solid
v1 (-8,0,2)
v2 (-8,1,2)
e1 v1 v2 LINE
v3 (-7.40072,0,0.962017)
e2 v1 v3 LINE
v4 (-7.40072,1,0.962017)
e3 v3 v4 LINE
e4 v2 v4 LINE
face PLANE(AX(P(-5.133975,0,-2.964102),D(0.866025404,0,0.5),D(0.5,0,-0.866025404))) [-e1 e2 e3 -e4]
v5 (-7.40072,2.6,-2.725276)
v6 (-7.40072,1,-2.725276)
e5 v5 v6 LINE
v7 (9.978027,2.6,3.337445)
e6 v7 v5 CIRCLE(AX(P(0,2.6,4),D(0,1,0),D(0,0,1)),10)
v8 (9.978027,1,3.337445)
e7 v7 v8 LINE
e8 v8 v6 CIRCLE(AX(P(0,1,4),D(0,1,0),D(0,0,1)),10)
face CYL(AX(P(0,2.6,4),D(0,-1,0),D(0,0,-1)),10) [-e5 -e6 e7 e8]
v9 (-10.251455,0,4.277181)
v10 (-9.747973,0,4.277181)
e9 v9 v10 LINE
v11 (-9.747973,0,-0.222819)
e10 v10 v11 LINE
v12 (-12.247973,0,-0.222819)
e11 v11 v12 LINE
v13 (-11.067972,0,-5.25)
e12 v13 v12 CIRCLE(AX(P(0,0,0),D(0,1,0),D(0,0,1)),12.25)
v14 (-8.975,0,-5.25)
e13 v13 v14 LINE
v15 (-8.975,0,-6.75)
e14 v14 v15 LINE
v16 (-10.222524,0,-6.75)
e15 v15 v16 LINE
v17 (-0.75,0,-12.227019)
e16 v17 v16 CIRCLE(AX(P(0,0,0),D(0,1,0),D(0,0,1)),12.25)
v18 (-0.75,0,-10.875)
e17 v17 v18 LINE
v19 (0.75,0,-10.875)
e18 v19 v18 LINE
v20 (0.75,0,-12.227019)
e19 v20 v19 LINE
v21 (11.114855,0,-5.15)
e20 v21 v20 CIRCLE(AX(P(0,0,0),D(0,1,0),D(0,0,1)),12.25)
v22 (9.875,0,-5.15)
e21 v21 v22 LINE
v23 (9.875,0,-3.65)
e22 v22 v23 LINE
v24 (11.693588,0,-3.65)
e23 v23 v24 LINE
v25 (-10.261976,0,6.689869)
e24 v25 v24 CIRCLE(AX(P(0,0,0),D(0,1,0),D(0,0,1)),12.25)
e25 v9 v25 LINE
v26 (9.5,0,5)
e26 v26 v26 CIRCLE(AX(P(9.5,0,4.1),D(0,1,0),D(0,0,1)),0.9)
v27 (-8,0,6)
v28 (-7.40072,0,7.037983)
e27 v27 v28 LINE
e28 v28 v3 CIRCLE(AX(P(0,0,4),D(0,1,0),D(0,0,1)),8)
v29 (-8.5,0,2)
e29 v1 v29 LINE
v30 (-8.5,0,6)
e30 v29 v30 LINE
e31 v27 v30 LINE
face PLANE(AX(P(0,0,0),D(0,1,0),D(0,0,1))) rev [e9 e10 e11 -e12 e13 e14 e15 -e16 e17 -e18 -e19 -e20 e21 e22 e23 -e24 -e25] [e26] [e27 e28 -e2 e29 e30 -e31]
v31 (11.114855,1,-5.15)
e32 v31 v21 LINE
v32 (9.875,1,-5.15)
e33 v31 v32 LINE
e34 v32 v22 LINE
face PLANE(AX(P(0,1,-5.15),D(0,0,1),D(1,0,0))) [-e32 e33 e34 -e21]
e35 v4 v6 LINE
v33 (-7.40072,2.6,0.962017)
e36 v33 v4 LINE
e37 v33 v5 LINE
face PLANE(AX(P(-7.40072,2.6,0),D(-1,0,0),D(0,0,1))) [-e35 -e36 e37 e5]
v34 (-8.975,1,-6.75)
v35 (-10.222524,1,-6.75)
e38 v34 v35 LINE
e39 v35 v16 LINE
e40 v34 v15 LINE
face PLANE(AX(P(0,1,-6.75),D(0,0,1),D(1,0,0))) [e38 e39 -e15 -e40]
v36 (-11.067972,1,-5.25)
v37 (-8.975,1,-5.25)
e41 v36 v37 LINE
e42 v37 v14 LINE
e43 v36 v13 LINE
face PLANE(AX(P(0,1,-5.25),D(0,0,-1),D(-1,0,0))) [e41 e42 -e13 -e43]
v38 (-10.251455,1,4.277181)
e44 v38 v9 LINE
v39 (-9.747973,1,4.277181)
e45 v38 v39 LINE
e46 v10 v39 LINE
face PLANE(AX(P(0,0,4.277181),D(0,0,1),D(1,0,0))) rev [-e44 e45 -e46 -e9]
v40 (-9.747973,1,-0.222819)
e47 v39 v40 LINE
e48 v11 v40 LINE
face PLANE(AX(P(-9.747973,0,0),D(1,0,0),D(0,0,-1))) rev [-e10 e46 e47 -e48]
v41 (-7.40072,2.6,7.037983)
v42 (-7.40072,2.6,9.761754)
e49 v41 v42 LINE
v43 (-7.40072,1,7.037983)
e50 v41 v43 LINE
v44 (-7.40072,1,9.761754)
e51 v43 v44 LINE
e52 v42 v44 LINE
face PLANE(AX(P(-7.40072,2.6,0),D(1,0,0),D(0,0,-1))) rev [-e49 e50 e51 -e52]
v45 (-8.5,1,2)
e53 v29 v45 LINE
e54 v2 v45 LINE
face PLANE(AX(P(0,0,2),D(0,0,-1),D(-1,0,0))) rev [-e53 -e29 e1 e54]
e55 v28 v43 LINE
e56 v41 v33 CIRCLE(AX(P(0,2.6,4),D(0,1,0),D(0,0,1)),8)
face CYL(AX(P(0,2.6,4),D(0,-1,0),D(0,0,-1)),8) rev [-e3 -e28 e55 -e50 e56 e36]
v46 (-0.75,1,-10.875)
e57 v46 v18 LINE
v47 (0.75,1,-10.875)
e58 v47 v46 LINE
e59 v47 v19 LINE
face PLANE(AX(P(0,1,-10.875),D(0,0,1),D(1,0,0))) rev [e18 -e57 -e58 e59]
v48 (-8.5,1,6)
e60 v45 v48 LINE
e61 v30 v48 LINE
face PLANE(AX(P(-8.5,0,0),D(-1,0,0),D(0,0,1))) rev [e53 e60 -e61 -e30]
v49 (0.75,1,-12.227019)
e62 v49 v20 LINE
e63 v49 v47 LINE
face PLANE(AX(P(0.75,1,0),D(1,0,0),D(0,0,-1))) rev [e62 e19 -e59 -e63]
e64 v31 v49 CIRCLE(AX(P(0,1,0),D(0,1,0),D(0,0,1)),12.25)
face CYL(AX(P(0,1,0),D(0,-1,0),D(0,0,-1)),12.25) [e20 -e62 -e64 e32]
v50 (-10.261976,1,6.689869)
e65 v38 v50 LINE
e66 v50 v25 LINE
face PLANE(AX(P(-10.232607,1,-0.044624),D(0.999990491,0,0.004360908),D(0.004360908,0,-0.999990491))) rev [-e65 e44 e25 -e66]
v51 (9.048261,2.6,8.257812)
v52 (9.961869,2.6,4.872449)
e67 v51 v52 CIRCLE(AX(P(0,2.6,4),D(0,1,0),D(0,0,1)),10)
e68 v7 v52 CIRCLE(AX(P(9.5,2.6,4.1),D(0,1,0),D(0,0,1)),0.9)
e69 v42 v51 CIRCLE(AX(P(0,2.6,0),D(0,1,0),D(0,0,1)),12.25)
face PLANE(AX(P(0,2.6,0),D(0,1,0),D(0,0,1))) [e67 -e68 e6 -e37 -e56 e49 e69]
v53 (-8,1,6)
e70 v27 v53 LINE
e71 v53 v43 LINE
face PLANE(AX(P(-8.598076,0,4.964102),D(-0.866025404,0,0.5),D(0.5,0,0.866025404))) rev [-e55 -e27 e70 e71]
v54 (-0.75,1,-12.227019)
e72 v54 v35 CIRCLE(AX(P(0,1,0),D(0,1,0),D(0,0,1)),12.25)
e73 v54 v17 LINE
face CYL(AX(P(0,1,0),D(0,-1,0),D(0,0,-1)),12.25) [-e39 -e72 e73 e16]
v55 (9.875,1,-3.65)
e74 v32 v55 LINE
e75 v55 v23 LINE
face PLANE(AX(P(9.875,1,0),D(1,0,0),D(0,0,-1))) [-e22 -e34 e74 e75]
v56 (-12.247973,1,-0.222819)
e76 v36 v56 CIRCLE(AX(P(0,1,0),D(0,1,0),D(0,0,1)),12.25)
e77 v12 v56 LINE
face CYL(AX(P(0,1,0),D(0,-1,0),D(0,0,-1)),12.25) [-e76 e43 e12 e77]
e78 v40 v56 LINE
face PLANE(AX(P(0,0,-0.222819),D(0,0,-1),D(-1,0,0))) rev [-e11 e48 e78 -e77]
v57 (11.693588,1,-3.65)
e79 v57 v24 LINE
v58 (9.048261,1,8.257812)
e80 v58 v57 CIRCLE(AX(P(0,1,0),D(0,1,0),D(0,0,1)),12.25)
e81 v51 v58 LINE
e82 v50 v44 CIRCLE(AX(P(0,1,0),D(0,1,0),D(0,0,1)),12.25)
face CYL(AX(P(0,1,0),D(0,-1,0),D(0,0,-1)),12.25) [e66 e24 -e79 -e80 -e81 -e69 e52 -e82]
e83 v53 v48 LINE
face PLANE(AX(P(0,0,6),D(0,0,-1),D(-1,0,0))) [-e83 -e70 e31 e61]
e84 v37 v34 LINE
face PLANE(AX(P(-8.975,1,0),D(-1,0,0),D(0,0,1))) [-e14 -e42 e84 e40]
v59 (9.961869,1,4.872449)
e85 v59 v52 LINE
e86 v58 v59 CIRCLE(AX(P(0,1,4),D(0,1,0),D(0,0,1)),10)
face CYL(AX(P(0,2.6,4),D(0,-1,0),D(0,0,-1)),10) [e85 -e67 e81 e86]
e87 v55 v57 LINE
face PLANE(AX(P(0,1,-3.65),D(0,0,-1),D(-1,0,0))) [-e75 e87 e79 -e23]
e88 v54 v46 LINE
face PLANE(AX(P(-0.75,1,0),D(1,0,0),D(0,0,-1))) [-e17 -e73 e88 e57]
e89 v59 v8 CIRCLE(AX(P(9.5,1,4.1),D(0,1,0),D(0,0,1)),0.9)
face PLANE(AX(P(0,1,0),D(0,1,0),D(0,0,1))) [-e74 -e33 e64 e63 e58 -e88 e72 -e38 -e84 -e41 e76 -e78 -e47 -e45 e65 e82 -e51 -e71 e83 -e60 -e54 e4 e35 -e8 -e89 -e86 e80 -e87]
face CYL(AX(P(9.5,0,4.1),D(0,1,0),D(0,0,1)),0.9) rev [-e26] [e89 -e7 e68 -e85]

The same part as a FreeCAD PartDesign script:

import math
import FreeCAD as App
import Part
import Sketcher

V = App.Vector
Q = App.Units.Quantity

doc = App.newDocument("Part")
params = doc.addObject("Spreadsheet::Sheet", "Params")
for row, (alias, value) in enumerate([
    ("sketch1_radius", "12.25 mm"),
    ("sketch1_width", "1.5 mm"),
    ("pad1_length", "1 mm"),
    ("sketch2_radius", "8 mm"),
    ("sketch2_radius2", "10 mm"),
    ("sketch2_radius3", "12.25 mm"),
    ("pad2_length", "1.6 mm"),
    ("sketch3_radius", "8 mm"),
    ("sketch3_diameter", "1.8 mm"),
    ("sketch3_height", "4 mm"),
    ("sketch3_radius2", "12.25 mm"),
    ("sketch3_width", "2.5 mm"),
], start=1):
    params.set(f"A{row}", alias)
    params.set(f"B{row}", "=" + value)
    params.setAlias(f"B{row}", alias)

body = doc.addObject("PartDesign::Body", "Body")

# Sketch on XZ plane
sketch1 = body.newObject("Sketcher::SketchObject", "Sketch")
sketch1.AttachmentSupport = (doc.getObject("XZ_Plane"), [""])
sketch1.MapMode = "FlatFace"
sketch1.addGeometry(Part.LineSegment(V(-0.8, -10.9, 0), V(-0.8, -12.2, 0)), False)
sketch1.addGeometry(Part.ArcOfCircle(Part.Circle(V(0, 0, 0), V(0, 0, 1), 12.3), math.radians(-147), math.radians(-94)), False)
sketch1.addGeometry(Part.LineSegment(V(-10.2, -6.8, 0), V(-9, -6.8, 0)), False)
sketch1.addGeometry(Part.LineSegment(V(-9, -6.8, 0), V(-9, -5.2, 0)), False)
sketch1.addGeometry(Part.LineSegment(V(-9, -5.2, 0), V(-11.1, -5.2, 0)), False)
sketch1.addGeometry(Part.ArcOfCircle(Part.Circle(V(0, 0, 0), V(0, 0, 1), 12.3), math.radians(160), math.radians(205)), False)
sketch1.addGeometry(Part.LineSegment(V(-11.5, 4.3, 0), V(-10.3, 4.3, 0)), False)
sketch1.addGeometry(Part.LineSegment(V(-10.3, 4.3, 0), V(-10.3, 6.7, 0)), False)
sketch1.addGeometry(Part.ArcOfCircle(Part.Circle(V(0, 0, 0), V(0, 0, 1), 12.2), math.radians(-17), math.radians(147)), False)
sketch1.addGeometry(Part.LineSegment(V(11.7, -3.6, 0), V(9.9, -3.6, 0)), False)
sketch1.addGeometry(Part.LineSegment(V(9.9, -3.6, 0), V(9.9, -5.2, 0)), False)
sketch1.addGeometry(Part.LineSegment(V(9.9, -5.2, 0), V(11.1, -5.2, 0)), False)
sketch1.addGeometry(Part.ArcOfCircle(Part.Circle(V(0, 0, 0), V(0, 0, 1), 12.2), math.radians(-86), math.radians(-25)), False)
sketch1.addGeometry(Part.LineSegment(V(0.8, -12.2, 0), V(0.8, -10.9, 0)), False)
sketch1.addGeometry(Part.LineSegment(V(0.8, -10.9, 0), V(-0.8, -10.9, 0)), False)
sketch1.addConstraint(Sketcher.Constraint("Coincident", 0, 2, 1, 2))
sketch1.addConstraint(Sketcher.Constraint("Coincident", 1, 1, 2, 1))
sketch1.addConstraint(Sketcher.Constraint("Coincident", 2, 2, 3, 1))
sketch1.addConstraint(Sketcher.Constraint("Coincident", 3, 2, 4, 1))
sketch1.addConstraint(Sketcher.Constraint("Coincident", 4, 2, 5, 2))
sketch1.addConstraint(Sketcher.Constraint("Coincident", 5, 1, 6, 1))
sketch1.addConstraint(Sketcher.Constraint("Coincident", 6, 2, 7, 1))
sketch1.addConstraint(Sketcher.Constraint("Coincident", 7, 2, 8, 2))
sketch1.addConstraint(Sketcher.Constraint("Coincident", 8, 1, 9, 1))
sketch1.addConstraint(Sketcher.Constraint("Coincident", 9, 2, 10, 1))
sketch1.addConstraint(Sketcher.Constraint("Coincident", 10, 2, 11, 1))
sketch1.addConstraint(Sketcher.Constraint("Coincident", 11, 2, 12, 2))
sketch1.addConstraint(Sketcher.Constraint("Coincident", 12, 1, 13, 1))
sketch1.addConstraint(Sketcher.Constraint("Coincident", 13, 2, 14, 1))
sketch1.addConstraint(Sketcher.Constraint("Coincident", 14, 2, 0, 1))
sketch1.addConstraint(Sketcher.Constraint("Vertical", 0))
sketch1.addConstraint(Sketcher.Constraint("Horizontal", 2))
sketch1.addConstraint(Sketcher.Constraint("Vertical", 3))
sketch1.addConstraint(Sketcher.Constraint("Horizontal", 4))
sketch1.addConstraint(Sketcher.Constraint("Horizontal", 6))
sketch1.addConstraint(Sketcher.Constraint("Horizontal", 9))
sketch1.addConstraint(Sketcher.Constraint("Vertical", 10))
sketch1.addConstraint(Sketcher.Constraint("Horizontal", 11))
sketch1.addConstraint(Sketcher.Constraint("Vertical", 13))
sketch1.addConstraint(Sketcher.Constraint("Horizontal", 14))
sketch1.addConstraint(Sketcher.Constraint("Coincident", 1, 3, -1, 1))
sketch1.addConstraint(Sketcher.Constraint("Coincident", 5, 3, -1, 1))
sketch1.addConstraint(Sketcher.Constraint("Coincident", 8, 3, -1, 1))
sketch1.addConstraint(Sketcher.Constraint("Coincident", 12, 3, -1, 1))
sketch1.addConstraint(Sketcher.Constraint("Equal", 1, 5))
sketch1.addConstraint(Sketcher.Constraint("Equal", 5, 8))
sketch1.addConstraint(Sketcher.Constraint("Equal", 8, 12))
sketch1.addConstraint(Sketcher.Constraint("Horizontal", 0, 2, 12, 1))
sketch1.addConstraint(Sketcher.Constraint("Equal", 14, 3))
sketch1.addConstraint(Sketcher.Constraint("Equal", 3, 10))
sketch1.addConstraint(Sketcher.Constraint("Radius", 1, Q("12.25 mm")))
sketch1.addConstraint(Sketcher.Constraint("DistanceX", 14, 2, 14, 1, Q("1.5 mm")))
sketch1.addConstraint(Sketcher.Constraint("DistanceY", 1, 1, -1, 1, Q("6.75 mm")))
sketch1.addConstraint(Sketcher.Constraint("DistanceY", 8, 1, -1, 1, Q("3.65 mm")))
sketch1.addConstraint(Sketcher.Constraint("DistanceX", 2, 2, -1, 1, Q("8.975 mm")))
sketch1.addConstraint(Sketcher.Constraint("DistanceX", -1, 1, 9, 2, Q("9.875 mm")))
sketch1.addConstraint(Sketcher.Constraint("DistanceY", 13, 2, -1, 1, Q("10.875 mm")))
sketch1.addConstraint(Sketcher.Constraint("DistanceX", 6, 1, 6, 2, Q("1.22758 mm")))
sketch1.addConstraint(Sketcher.Constraint("Distance", 7, Q("2.412711 mm")))
sketch1.addConstraint(Sketcher.Constraint("DistanceY", -1, 1, 5, 1, Q("4.277181 mm")))
sketch1.setExpression("Constraints[35]", "Params.sketch1_radius")
sketch1.setExpression("Constraints[36]", "Params.sketch1_width")
pad1 = body.newObject("PartDesign::Pad", "Pad")
pad1.Profile = sketch1
pad1.setExpression("Length", "Params.pad1_length")
pad1.Reversed = True

# Sketch on XZ plane
sketch2 = body.newObject("Sketcher::SketchObject", "Sketch001")
sketch2.AttachmentSupport = (doc.getObject("XZ_Plane"), [""])
sketch2.MapMode = "FlatFace"
sketch2.AttachmentOffset = App.Placement(V(0, 0, -1), App.Rotation())
sketch2.addGeometry(Part.LineSegment(V(-7.4, -2.7, 0), V(-7.4, 1, 0)), False)
sketch2.addGeometry(Part.ArcOfCircle(Part.Circle(V(0, 4, 0), V(0, 0, 1), 8), math.radians(-158), math.radians(0)), False)
sketch2.addGeometry(Part.ArcOfCircle(Part.Circle(V(0, 4, 0), V(0, 0, 1), 8), math.radians(0), math.radians(158)), False)
sketch2.addGeometry(Part.LineSegment(V(-7.4, 7, 0), V(-7.4, 9.8, 0)), False)
sketch2.addGeometry(Part.ArcOfCircle(Part.Circle(V(0, 0, 0), V(0, 0, 1), 12.2), math.radians(42), math.radians(127)), False)
sketch2.addGeometry(Part.ArcOfCircle(Part.Circle(V(0, 4, 0), V(0, 0, 1), 10), math.radians(0), math.radians(25)), False)
sketch2.addGeometry(Part.ArcOfCircle(Part.Circle(V(0, 4, 0), V(0, 0, 1), 10), math.radians(-138), math.radians(0)), False)
sketch2.addConstraint(Sketcher.Constraint("Coincident", 0, 2, 1, 1))
sketch2.addConstraint(Sketcher.Constraint("Tangent", 1, 2, 2, 1))
sketch2.addConstraint(Sketcher.Constraint("Coincident", 2, 2, 3, 1))
sketch2.addConstraint(Sketcher.Constraint("Coincident", 3, 2, 4, 2))
sketch2.addConstraint(Sketcher.Constraint("Coincident", 4, 1, 5, 2))
sketch2.addConstraint(Sketcher.Constraint("Tangent", 5, 1, 6, 2))
sketch2.addConstraint(Sketcher.Constraint("Coincident", 6, 1, 0, 1))
sketch2.addConstraint(Sketcher.Constraint("Vertical", 0))
sketch2.addConstraint(Sketcher.Constraint("Vertical", 3))
sketch2.addConstraint(Sketcher.Constraint("Coincident", 4, 3, -1, 1))
sketch2.addConstraint(Sketcher.Constraint("Coincident", 5, 3, 1, 3))
sketch2.addConstraint(Sketcher.Constraint("Equal", 1, 2))
sketch2.addConstraint(Sketcher.Constraint("Equal", 5, 6))
sketch2.addConstraint(Sketcher.Constraint("PointOnObject", 1, 3, -2))
sketch2.addConstraint(Sketcher.Constraint("Horizontal", 6, 3, 1, 2))
sketch2.addConstraint(Sketcher.Constraint("Horizontal", 1, 2, 5, 1))
sketch2.addConstraint(Sketcher.Constraint("Vertical", 0, 2, 2, 2))
sketch2.addConstraint(Sketcher.Constraint("Radius", 1, Q("8 mm")))
sketch2.addConstraint(Sketcher.Constraint("Radius", 5, Q("10 mm")))
sketch2.addConstraint(Sketcher.Constraint("Radius", 4, Q("12.25 mm")))
sketch2.addConstraint(Sketcher.Constraint("DistanceY", -1, 1, 1, 3, Q("4 mm")))
sketch2.addConstraint(Sketcher.Constraint("DistanceY", 3, 1, 3, 2, Q("2.723771 mm")))
sketch2.setExpression("Constraints[17]", "Params.sketch2_radius")
sketch2.setExpression("Constraints[18]", "Params.sketch2_radius2")
sketch2.setExpression("Constraints[19]", "Params.sketch2_radius3")
pad2 = body.newObject("PartDesign::Pad", "Pad001")
pad2.Profile = sketch2
pad2.setExpression("Length", "Params.pad2_length")
pad2.Reversed = True

# Sketch on XZ plane
sketch3 = body.newObject("Sketcher::SketchObject", "Sketch002")
sketch3.AttachmentSupport = (doc.getObject("XZ_Plane"), [""])
sketch3.MapMode = "FlatFace"
sketch3.AttachmentOffset = App.Placement(V(0, 0, -1), App.Rotation())
sketch3.addGeometry(Part.LineSegment(V(-11.5, 4.3, 0), V(-9.7, 4.3, 0)), False)
sketch3.addGeometry(Part.LineSegment(V(-9.7, 4.3, 0), V(-9.7, -0.2, 0)), False)
sketch3.addGeometry(Part.LineSegment(V(-9.7, -0.2, 0), V(-12.2, -0.2, 0)), False)
sketch3.addGeometry(Part.ArcOfCircle(Part.Circle(V(0, 0, 0), V(0, 0, 1), 12.2), math.radians(160), math.radians(181)), False)
sketch3.addGeometry(Part.ArcOfCircle(Part.Circle(V(0, 4, 0), V(0, 0, 1), 8), math.radians(-158), math.radians(158)), False)
sketch3.addGeometry(Part.LineSegment(V(-7.4, 1, 0), V(-8, 2, 0)), False)
sketch3.addGeometry(Part.LineSegment(V(-8, 2, 0), V(-8.5, 2, 0)), False)
sketch3.addGeometry(Part.LineSegment(V(-8.5, 2, 0), V(-8.5, 6, 0)), False)
sketch3.addGeometry(Part.LineSegment(V(-8.5, 6, 0), V(-8, 6, 0)), False)
sketch3.addGeometry(Part.LineSegment(V(-8, 6, 0), V(-7.4, 7, 0)), False)
sketch3.addGeometry(Part.Circle(V(9.5, 4.1, 0), V(0, 0, 1), 0.9), False)
sketch3.addConstraint(Sketcher.Constraint("Coincident", 0, 2, 1, 1))
sketch3.addConstraint(Sketcher.Constraint("Coincident", 1, 2, 2, 1))
sketch3.addConstraint(Sketcher.Constraint("Coincident", 2, 2, 3, 2))
sketch3.addConstraint(Sketcher.Constraint("Coincident", 3, 1, 0, 1))
sketch3.addConstraint(Sketcher.Constraint("Coincident", 4, 1, 5, 1))
sketch3.addConstraint(Sketcher.Constraint("Coincident", 5, 2, 6, 1))
sketch3.addConstraint(Sketcher.Constraint("Coincident", 6, 2, 7, 1))
sketch3.addConstraint(Sketcher.Constraint("Coincident", 7, 2, 8, 1))
sketch3.addConstraint(Sketcher.Constraint("Coincident", 8, 2, 9, 1))
sketch3.addConstraint(Sketcher.Constraint("Coincident", 9, 2, 4, 2))
sketch3.addConstraint(Sketcher.Constraint("Horizontal", 0))
sketch3.addConstraint(Sketcher.Constraint("Vertical", 1))
sketch3.addConstraint(Sketcher.Constraint("Horizontal", 2))
sketch3.addConstraint(Sketcher.Constraint("Horizontal", 6))
sketch3.addConstraint(Sketcher.Constraint("Vertical", 7))
sketch3.addConstraint(Sketcher.Constraint("Horizontal", 8))
sketch3.addConstraint(Sketcher.Constraint("Coincident", 3, 3, -1, 1))
sketch3.addConstraint(Sketcher.Constraint("PointOnObject", 4, 3, -2))
sketch3.addConstraint(Sketcher.Constraint("Vertical", 5, 2, 8, 2))
sketch3.addConstraint(Sketcher.Constraint("Vertical", 4, 1, 9, 2))
sketch3.addConstraint(Sketcher.Constraint("Equal", 5, 9))
sketch3.addConstraint(Sketcher.Constraint("Radius", 4, Q("8 mm")))
sketch3.addConstraint(Sketcher.Constraint("Diameter", 10, Q("1.8 mm")))
sketch3.addConstraint(Sketcher.Constraint("DistanceY", 7, 1, 7, 2, Q("4 mm")))
sketch3.addConstraint(Sketcher.Constraint("Angle", 5, Q("120 deg")))
sketch3.addConstraint(Sketcher.Constraint("Radius", 3, Q("12.25 mm")))
sketch3.addConstraint(Sketcher.Constraint("DistanceX", 2, 2, 2, 1, Q("2.5 mm")))
sketch3.addConstraint(Sketcher.Constraint("DistanceX", 6, 2, 6, 1, Q("0.5 mm")))
sketch3.addConstraint(Sketcher.Constraint("DistanceY", 1, 2, 1, 1, Q("4.5 mm")))
sketch3.addConstraint(Sketcher.Constraint("DistanceY", -1, 1, 4, 3, Q("4 mm")))
sketch3.addConstraint(Sketcher.Constraint("DistanceX", 5, 2, -1, 1, Q("8 mm")))
sketch3.addConstraint(Sketcher.Constraint("DistanceX", -1, 1, 10, 3, Q("9.5 mm")))
sketch3.addConstraint(Sketcher.Constraint("DistanceY", -1, 1, 10, 3, Q("4.1 mm")))
sketch3.addConstraint(Sketcher.Constraint("DistanceX", 0, 1, 0, 2, Q("1.731061 mm")))
sketch3.setExpression("Constraints[21]", "Params.sketch3_radius")
sketch3.setExpression("Constraints[22]", "Params.sketch3_diameter")
sketch3.setExpression("Constraints[23]", "Params.sketch3_height")
sketch3.setExpression("Constraints[25]", "Params.sketch3_radius2")
sketch3.setExpression("Constraints[26]", "Params.sketch3_width")
pocket1 = body.newObject("PartDesign::Pocket", "Pocket")
pocket1.Profile = sketch3
pocket1.Type = "ThroughAll"
pocket1.Midplane = True

doc.recompute()
